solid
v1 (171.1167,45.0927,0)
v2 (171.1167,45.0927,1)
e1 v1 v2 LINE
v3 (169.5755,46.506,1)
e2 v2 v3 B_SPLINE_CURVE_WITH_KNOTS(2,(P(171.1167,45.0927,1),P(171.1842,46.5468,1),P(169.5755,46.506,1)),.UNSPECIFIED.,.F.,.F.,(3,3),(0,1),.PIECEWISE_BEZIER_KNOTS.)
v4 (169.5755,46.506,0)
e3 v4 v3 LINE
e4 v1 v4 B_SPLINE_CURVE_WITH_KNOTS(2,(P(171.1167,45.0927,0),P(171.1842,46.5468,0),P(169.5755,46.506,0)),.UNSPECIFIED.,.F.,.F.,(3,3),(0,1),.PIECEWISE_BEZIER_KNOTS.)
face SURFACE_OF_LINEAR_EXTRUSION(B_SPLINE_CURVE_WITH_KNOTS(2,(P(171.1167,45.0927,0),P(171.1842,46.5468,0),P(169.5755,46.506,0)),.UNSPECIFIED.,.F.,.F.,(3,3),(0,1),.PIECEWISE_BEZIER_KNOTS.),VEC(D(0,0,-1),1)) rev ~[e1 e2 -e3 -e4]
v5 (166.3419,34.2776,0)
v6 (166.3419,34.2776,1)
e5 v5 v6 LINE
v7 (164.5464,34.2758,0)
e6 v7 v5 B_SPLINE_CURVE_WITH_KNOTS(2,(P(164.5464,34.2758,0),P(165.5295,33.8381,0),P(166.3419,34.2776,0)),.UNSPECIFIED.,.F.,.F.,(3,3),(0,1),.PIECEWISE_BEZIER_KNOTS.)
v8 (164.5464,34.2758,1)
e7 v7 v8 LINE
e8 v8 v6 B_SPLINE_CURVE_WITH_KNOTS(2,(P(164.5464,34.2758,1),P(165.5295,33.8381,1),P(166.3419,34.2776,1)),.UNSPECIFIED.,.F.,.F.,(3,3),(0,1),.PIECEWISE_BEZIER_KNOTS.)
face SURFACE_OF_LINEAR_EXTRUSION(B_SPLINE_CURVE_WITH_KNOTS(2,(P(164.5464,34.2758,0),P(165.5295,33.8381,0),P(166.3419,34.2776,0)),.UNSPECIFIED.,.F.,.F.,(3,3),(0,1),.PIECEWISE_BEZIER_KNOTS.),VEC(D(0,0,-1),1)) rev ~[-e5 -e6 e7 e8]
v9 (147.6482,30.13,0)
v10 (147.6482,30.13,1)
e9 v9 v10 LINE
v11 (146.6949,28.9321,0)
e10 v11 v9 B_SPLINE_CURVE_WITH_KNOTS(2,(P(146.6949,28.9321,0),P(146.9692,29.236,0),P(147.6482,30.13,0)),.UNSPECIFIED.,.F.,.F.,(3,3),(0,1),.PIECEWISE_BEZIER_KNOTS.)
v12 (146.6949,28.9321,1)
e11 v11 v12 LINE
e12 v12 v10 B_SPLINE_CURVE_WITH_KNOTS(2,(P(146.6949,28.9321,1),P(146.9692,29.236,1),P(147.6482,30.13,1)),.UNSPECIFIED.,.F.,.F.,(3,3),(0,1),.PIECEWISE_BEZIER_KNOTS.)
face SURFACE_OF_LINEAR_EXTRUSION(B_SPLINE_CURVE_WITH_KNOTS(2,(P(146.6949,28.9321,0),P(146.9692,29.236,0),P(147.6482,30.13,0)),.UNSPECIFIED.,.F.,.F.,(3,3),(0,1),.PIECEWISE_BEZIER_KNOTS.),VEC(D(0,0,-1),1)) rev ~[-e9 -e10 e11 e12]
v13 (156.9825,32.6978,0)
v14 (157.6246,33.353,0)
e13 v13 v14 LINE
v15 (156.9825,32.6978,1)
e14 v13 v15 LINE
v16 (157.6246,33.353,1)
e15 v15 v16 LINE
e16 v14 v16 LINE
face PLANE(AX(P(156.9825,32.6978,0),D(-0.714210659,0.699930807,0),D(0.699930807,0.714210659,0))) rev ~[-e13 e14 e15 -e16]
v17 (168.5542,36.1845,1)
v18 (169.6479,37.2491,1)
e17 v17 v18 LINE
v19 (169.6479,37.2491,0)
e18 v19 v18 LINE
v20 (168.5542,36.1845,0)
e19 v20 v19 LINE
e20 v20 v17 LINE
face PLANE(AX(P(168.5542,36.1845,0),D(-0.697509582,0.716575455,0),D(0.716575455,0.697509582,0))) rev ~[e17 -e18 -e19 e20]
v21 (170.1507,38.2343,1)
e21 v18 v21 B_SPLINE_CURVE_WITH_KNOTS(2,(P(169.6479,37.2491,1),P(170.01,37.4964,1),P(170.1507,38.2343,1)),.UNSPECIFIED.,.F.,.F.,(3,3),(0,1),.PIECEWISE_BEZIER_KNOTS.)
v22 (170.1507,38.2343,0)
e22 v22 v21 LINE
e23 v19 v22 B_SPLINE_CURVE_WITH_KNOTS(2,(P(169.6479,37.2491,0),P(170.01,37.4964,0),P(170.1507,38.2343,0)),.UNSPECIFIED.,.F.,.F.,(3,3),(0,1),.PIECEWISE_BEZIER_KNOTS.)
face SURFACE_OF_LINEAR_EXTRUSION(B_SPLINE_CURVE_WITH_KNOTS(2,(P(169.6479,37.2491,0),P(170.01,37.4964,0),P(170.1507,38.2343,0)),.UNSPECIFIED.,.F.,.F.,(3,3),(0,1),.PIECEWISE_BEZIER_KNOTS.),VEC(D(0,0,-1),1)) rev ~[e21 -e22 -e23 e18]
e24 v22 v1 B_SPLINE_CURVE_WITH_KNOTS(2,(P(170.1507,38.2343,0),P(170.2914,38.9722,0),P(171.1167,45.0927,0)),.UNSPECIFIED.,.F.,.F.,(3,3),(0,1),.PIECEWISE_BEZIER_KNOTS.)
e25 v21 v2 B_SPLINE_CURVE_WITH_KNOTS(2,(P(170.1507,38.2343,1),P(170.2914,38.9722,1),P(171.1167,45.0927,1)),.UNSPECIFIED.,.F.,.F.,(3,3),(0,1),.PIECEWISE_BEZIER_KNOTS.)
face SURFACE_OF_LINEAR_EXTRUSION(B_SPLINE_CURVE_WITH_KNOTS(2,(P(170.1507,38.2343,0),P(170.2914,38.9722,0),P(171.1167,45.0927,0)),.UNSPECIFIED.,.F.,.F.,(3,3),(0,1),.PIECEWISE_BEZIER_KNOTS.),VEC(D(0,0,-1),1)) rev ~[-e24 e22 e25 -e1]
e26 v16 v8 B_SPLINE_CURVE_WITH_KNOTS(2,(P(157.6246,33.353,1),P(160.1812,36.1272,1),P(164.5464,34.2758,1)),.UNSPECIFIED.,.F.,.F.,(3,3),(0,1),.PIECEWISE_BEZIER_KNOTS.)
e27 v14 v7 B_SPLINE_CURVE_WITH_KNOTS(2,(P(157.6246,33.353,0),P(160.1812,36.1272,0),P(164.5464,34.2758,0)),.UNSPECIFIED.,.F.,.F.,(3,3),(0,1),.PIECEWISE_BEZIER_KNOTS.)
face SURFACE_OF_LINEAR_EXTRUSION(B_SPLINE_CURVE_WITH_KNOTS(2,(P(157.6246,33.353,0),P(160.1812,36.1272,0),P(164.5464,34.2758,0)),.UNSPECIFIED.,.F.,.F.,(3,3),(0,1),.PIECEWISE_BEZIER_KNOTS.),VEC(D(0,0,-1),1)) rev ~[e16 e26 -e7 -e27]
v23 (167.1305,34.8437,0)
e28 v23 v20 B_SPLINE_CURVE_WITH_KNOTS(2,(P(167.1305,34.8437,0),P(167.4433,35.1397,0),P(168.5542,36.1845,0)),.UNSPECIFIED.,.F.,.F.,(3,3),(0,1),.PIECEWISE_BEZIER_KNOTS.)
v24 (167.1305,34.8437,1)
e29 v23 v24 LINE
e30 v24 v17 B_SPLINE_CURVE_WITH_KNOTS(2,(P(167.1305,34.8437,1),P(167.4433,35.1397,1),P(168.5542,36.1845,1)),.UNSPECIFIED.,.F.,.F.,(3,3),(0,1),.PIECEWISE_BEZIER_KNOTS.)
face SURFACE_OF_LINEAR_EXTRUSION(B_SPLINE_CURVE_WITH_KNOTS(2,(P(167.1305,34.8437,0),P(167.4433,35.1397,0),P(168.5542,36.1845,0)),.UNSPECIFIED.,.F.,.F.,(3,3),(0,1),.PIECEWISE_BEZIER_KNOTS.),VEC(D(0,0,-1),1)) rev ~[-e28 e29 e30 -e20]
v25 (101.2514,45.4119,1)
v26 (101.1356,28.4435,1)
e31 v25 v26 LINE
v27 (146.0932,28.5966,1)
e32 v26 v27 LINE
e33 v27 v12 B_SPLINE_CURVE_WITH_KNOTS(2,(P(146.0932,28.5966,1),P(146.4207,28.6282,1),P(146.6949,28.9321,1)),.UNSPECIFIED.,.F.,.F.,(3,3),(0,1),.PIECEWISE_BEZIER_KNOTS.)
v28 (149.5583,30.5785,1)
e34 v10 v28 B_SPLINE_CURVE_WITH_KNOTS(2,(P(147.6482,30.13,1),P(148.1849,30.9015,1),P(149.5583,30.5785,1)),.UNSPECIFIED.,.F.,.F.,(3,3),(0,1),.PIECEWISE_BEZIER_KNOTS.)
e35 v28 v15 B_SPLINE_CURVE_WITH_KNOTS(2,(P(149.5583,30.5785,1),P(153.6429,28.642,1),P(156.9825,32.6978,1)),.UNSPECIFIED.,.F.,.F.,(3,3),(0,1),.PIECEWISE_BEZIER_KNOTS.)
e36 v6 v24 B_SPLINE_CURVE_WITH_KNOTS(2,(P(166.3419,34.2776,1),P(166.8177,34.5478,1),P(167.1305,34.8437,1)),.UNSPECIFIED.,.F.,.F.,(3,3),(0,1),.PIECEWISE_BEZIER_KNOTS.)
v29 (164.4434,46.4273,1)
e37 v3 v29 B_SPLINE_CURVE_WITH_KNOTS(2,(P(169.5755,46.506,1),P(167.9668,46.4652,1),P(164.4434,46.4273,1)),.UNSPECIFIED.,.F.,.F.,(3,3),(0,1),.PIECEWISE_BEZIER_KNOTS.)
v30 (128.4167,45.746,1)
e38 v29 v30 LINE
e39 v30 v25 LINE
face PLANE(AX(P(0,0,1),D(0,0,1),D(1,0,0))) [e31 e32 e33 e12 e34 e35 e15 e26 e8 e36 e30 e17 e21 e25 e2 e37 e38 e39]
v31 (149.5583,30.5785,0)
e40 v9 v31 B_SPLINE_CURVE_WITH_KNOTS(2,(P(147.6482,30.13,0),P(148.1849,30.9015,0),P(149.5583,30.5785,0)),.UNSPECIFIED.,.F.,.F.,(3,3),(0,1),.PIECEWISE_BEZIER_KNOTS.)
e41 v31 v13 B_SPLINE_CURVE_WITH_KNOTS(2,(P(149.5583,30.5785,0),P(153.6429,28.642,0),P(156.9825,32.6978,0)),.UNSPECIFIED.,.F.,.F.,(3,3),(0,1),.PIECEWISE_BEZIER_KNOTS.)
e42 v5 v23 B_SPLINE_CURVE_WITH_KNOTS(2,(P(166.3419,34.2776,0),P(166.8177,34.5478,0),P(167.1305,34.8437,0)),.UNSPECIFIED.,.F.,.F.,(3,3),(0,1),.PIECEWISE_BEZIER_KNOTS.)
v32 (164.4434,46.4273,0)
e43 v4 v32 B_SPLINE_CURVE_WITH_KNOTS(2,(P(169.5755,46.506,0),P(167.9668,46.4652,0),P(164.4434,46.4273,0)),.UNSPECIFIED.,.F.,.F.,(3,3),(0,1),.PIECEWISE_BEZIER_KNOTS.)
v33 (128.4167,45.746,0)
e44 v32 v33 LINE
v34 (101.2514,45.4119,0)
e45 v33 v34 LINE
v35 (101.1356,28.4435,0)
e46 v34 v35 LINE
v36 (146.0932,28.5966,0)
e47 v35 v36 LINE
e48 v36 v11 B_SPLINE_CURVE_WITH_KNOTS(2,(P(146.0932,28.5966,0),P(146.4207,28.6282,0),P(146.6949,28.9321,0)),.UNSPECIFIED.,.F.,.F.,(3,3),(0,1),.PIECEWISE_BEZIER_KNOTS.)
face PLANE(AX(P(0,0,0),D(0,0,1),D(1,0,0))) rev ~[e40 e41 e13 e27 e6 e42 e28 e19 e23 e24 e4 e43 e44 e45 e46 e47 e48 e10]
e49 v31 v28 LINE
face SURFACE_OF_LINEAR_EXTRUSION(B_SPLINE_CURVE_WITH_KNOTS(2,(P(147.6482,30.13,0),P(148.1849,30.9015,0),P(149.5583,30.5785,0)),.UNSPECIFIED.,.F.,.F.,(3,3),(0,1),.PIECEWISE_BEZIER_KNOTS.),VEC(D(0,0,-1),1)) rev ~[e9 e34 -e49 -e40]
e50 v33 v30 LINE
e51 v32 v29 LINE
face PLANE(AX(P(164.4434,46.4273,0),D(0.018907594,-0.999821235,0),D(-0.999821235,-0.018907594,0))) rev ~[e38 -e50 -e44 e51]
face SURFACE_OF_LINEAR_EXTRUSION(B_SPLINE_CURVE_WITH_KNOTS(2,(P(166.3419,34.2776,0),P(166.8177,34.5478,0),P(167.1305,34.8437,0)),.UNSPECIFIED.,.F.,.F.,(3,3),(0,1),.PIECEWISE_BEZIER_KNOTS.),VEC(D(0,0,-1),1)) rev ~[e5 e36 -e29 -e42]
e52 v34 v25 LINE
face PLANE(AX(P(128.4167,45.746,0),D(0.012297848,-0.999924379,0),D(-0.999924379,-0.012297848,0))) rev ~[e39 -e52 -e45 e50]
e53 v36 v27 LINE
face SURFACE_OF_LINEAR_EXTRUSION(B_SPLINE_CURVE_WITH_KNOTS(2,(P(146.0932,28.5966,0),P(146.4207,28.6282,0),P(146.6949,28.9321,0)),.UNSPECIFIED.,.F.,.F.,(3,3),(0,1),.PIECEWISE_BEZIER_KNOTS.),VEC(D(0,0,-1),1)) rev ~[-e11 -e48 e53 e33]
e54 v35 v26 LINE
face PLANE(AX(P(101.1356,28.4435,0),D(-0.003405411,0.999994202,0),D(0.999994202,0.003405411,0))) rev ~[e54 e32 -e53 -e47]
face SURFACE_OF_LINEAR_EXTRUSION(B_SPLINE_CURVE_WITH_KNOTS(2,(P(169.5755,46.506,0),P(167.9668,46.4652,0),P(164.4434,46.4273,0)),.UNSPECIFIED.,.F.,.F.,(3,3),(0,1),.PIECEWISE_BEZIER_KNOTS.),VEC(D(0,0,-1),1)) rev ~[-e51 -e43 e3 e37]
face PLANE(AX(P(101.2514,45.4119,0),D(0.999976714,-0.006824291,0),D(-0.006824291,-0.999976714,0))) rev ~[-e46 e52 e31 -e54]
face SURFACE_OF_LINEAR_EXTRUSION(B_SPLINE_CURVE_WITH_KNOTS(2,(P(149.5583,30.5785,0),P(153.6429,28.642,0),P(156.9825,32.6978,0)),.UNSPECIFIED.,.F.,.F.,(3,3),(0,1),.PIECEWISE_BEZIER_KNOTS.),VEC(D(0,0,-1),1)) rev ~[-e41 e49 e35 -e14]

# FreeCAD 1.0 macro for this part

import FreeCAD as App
import Part
import Sketcher

V = App.Vector
Q = App.Units.Quantity

doc = App.newDocument("Part")
body = doc.addObject("PartDesign::Body", "Body")

# Sketch on XY plane
sketch1 = body.newObject("Sketcher::SketchObject", "Sketch")
sketch1.AttachmentSupport = (doc.getObject("XY_Plane"), [""])
sketch1.MapMode = "FlatFace"
sketch1.addGeometry([
    Part.LineSegment(V(101.2514, 45.4119, 0), V(101.1356, 28.4435, 0)),  # 0
    Part.LineSegment(V(101.1356, 28.4435, 0), V(146.0932, 28.5966, 0)),  # 1
    Part.BSplineCurve([V(146.0932, 28.5966, 0), V(146.4207, 28.6282, 0), V(146.6949, 28.9321, 0)], [3, 3], [0, 1], False, 2, [1, 1, 1], False),  # 2
    Part.BSplineCurve([V(146.6949, 28.9321, 0), V(146.9692, 29.236, 0), V(147.6482, 30.13, 0)], [3, 3], [0, 1], False, 2, [1, 1, 1], False),  # 3
    Part.BSplineCurve([V(147.6482, 30.13, 0), V(148.1849, 30.9015, 0), V(149.5583, 30.5785, 0)], [3, 3], [0, 1], False, 2, [1, 1, 1], False),  # 4
    Part.BSplineCurve([V(149.5583, 30.5785, 0), V(153.6429, 28.642, 0), V(156.9825, 32.6978, 0)], [3, 3], [0, 1], False, 2, [1, 1, 1], False),  # 5
    Part.LineSegment(V(156.9825, 32.6978, 0), V(157.6246, 33.353, 0)),  # 6
    Part.BSplineCurve([V(157.6246, 33.353, 0), V(160.1812, 36.1272, 0), V(164.5464, 34.2758, 0)], [3, 3], [0, 1], False, 2, [1, 1, 1], False),  # 7
    Part.BSplineCurve([V(164.5464, 34.2758, 0), V(165.5295, 33.8381, 0), V(166.3419, 34.2776, 0)], [3, 3], [0, 1], False, 2, [1, 1, 1], False),  # 8
    Part.BSplineCurve([V(166.3419, 34.2776, 0), V(166.8177, 34.5478, 0), V(167.1305, 34.8437, 0)], [3, 3], [0, 1], False, 2, [1, 1, 1], False),  # 9
    Part.BSplineCurve([V(167.1305, 34.8437, 0), V(167.4433, 35.1397, 0), V(168.5542, 36.1845, 0)], [3, 3], [0, 1], False, 2, [1, 1, 1], False),  # 10
    Part.LineSegment(V(168.5542, 36.1845, 0), V(169.6479, 37.2491, 0)),  # 11
    Part.BSplineCurve([V(169.6479, 37.2491, 0), V(170.01, 37.4964, 0), V(170.1507, 38.2343, 0)], [3, 3], [0, 1], False, 2, [1, 1, 1], False),  # 12
    Part.BSplineCurve([V(170.1507, 38.2343, 0), V(170.2914, 38.9722, 0), V(171.1167, 45.0927, 0)], [3, 3], [0, 1], False, 2, [1, 1, 1], False),  # 13
    Part.BSplineCurve([V(171.1167, 45.0927, 0), V(171.1842, 46.5468, 0), V(169.5755, 46.506, 0)], [3, 3], [0, 1], False, 2, [1, 1, 1], False),  # 14
    Part.BSplineCurve([V(169.5755, 46.506, 0), V(167.9668, 46.4652, 0), V(164.4434, 46.4273, 0)], [3, 3], [0, 1], False, 2, [1, 1, 1], False),  # 15
    Part.LineSegment(V(164.4434, 46.4273, 0), V(128.4167, 45.746, 0)),  # 16
    Part.LineSegment(V(128.4167, 45.746, 0), V(101.2514, 45.4119, 0)),  # 17
], False)
sketch1.addConstraint([
    Sketcher.Constraint("Block", 2),
    Sketcher.Constraint("Block", 3),
    Sketcher.Constraint("Block", 4),
    Sketcher.Constraint("Block", 5),
    Sketcher.Constraint("Block", 7),
    Sketcher.Constraint("Block", 8),
    Sketcher.Constraint("Block", 9),
    Sketcher.Constraint("Block", 10),
    Sketcher.Constraint("Block", 12),
    Sketcher.Constraint("Block", 13),
    Sketcher.Constraint("Block", 14),
    Sketcher.Constraint("Block", 15),
    Sketcher.Constraint("Coincident", 0, 2, 1, 1),
    Sketcher.Constraint("Coincident", 1, 2, 2, 1),
    Sketcher.Constraint("Coincident", 5, 2, 6, 1),
    Sketcher.Constraint("Coincident", 6, 2, 7, 1),
    Sketcher.Constraint("Coincident", 10, 2, 11, 1),
    Sketcher.Constraint("Coincident", 11, 2, 12, 1),
    Sketcher.Constraint("Coincident", 15, 2, 16, 1),
    Sketcher.Constraint("Coincident", 16, 2, 17, 1),
    Sketcher.Constraint("Coincident", 17, 2, 0, 1),
    Sketcher.Constraint("Angle", 0, Q("-90.391 deg")),
    Sketcher.Constraint("DistanceY", -1, 1, 16, 2, 45.746),
    Sketcher.Constraint("DistanceY", -1, 1, 17, 2, 45.412),
    Sketcher.Constraint("DistanceY", 0, 2, 1, 2, 0.153),
    Sketcher.Constraint("DistanceX", 0, 2, 6, 2, 56.489),
    Sketcher.Constraint("DistanceX", 16, 2, 6, 2, 29.208),
])
pad1 = body.newObject("PartDesign::Pad", "Pad")
pad1.Profile = sketch1
pad1.Length = 1

doc.recompute()
